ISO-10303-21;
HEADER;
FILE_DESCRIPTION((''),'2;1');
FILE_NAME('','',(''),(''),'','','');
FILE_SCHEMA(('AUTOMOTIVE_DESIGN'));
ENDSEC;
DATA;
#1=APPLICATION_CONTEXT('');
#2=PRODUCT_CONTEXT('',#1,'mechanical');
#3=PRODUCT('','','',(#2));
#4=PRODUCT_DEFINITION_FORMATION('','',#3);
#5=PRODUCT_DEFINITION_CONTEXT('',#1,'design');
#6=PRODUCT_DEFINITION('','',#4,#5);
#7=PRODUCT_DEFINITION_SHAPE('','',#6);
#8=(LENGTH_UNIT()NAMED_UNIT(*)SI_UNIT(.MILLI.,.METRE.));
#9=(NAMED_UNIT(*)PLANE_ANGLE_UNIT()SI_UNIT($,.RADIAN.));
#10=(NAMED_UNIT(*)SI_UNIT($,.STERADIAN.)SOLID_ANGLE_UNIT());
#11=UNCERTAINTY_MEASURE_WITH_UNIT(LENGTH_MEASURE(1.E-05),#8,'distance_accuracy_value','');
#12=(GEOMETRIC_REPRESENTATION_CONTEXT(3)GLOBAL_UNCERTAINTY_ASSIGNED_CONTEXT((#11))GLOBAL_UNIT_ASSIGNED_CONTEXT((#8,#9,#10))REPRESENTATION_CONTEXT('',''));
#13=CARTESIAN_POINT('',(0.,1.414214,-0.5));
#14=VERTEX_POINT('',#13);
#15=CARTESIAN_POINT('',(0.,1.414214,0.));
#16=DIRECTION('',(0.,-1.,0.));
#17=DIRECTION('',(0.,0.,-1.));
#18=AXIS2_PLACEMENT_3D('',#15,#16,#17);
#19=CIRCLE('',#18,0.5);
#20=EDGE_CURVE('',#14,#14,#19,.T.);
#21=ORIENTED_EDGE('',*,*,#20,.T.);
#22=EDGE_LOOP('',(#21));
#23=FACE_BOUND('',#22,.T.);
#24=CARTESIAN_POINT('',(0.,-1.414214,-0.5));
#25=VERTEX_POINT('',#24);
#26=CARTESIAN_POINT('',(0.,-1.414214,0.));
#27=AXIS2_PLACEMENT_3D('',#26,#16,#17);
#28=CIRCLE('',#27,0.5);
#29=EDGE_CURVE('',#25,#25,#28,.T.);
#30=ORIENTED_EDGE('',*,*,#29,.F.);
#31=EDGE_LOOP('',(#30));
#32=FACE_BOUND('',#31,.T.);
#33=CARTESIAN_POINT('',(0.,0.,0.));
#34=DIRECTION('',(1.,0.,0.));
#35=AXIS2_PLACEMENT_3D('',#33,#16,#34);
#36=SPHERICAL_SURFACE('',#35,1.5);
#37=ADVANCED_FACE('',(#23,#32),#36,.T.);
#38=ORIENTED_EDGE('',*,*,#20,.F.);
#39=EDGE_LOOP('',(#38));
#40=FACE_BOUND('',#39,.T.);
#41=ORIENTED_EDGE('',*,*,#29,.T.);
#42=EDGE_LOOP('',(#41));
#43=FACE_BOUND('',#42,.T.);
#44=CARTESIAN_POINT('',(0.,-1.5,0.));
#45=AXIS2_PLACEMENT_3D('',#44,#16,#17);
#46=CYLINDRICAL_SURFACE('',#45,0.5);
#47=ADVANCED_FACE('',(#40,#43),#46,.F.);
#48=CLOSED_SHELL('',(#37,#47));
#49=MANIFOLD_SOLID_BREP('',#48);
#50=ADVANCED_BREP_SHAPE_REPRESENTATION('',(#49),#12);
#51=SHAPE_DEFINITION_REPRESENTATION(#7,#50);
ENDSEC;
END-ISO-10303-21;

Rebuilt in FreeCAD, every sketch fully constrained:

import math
import FreeCAD as App
import Part
import Sketcher

V = App.Vector

doc = App.newDocument("Part")
params = doc.addObject("Spreadsheet::Sheet", "Params")
for row, (alias, value) in enumerate([
    ("sketch1_radius", "1.5 mm"),
    ("revolution_angle", "360 deg"),
], start=1):
    params.set(f"A{row}", alias)
    params.set(f"B{row}", "=" + value)
    params.setAlias(f"B{row}", alias)

body = doc.addObject("PartDesign::Body", "Body")

sketch1 = doc.addObject("Sketcher::SketchObject", "Sketch")
body.addObject(sketch1)
sketch1.AttachmentSupport = (doc.XY_Plane, [""])
sketch1.MapMode = "FlatFace"
sketch1.addGeometry(Part.LineSegment(V(0.5, 1.4, 0), V(0.5, -1.4, 0)), False)
sketch1.addGeometry(Part.ArcOfCircle(Part.Circle(V(0, 0, 0), V(0, 0, 1), 1.5), math.radians(-71), math.radians(71)), False)
sketch1.addConstraint(Sketcher.Constraint("Coincident", 0, 1, 1, 2))
sketch1.addConstraint(Sketcher.Constraint("Coincident", 1, 1, 0, 2))
sketch1.addConstraint(Sketcher.Constraint("Vertical", 0))
sketch1.addConstraint(Sketcher.Constraint("Coincident", 1, 3, -1, 1))
sketch1.addConstraint(Sketcher.Constraint("Radius", 1, 1.5))
sketch1.addConstraint(Sketcher.Constraint("DistanceX", -1, 1, 0, 1, 0.5))
sketch1.setExpression("Constraints[4]", "Params.sketch1_radius")
revolution = doc.addObject("PartDesign::Revolution", "Revolution")
body.addObject(revolution)
revolution.Profile = sketch1
revolution.ReferenceAxis = (sketch1, ["V_Axis"])
revolution.setExpression("Angle", "Params.revolution_angle")

doc.recompute()
